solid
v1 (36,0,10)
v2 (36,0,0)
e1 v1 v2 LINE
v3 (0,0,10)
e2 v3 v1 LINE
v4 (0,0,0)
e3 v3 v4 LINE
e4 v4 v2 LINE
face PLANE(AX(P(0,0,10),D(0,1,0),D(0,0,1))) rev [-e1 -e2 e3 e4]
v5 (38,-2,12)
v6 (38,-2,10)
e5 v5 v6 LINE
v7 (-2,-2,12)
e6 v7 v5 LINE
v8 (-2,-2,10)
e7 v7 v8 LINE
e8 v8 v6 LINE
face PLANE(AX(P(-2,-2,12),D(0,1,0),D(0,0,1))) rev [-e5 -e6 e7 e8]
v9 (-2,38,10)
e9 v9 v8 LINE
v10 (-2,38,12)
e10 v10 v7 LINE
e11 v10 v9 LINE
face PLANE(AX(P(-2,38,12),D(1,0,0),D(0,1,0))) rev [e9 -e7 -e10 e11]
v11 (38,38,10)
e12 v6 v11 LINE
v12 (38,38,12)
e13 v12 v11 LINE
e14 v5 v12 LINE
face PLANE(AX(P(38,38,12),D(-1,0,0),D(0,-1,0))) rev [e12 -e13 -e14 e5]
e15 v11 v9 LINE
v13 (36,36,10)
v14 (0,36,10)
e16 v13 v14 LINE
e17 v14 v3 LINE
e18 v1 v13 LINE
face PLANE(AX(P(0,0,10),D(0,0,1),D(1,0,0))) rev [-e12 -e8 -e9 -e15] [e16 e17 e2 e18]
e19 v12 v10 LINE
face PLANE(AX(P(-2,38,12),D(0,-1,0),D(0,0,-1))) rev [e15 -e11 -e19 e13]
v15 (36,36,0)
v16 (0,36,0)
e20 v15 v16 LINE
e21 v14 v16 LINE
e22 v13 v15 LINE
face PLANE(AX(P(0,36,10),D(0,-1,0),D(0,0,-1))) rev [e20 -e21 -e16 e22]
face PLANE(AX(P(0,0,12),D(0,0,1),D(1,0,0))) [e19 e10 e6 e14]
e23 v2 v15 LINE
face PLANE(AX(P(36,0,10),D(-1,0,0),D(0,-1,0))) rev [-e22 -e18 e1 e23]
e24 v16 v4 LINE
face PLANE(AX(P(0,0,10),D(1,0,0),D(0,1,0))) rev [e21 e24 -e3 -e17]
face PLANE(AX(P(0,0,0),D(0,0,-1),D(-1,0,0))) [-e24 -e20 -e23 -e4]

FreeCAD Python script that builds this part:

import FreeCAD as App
import Part
import Sketcher

doc = App.newDocument("Part")
body = doc.addObject("PartDesign::Body", "Body")

# Sketch on XY plane
sketch1 = doc.addObject("Sketcher::SketchObject", "Sketch")
body.addObject(sketch1)
sketch1.AttachmentSupport = (doc.XY_Plane, [""])
sketch1.MapMode = "FlatFace"
sketch1.addGeometry([
    Part.LineSegment(App.Vector(0, 36, 0), App.Vector(0, 0, 0)),
    Part.LineSegment(App.Vector(0, 0, 0), App.Vector(36, 0, 0)),
    Part.LineSegment(App.Vector(36, 0, 0), App.Vector(36, 36, 0)),
    Part.LineSegment(App.Vector(36, 36, 0), App.Vector(0, 36, 0)),
], False)
sketch1.addConstraint([
    Sketcher.Constraint("Coincident", 0, 2, 1, 1),
    Sketcher.Constraint("Coincident", 1, 2, 2, 1),
    Sketcher.Constraint("Coincident", 2, 2, 3, 1),
    Sketcher.Constraint("Coincident", 3, 2, 0, 1),
    Sketcher.Constraint("Vertical", 0),
    Sketcher.Constraint("Horizontal", 1),
    Sketcher.Constraint("Vertical", 2),
    Sketcher.Constraint("Horizontal", 3),
    Sketcher.Constraint("Coincident", 0, 2, -1, 1),
    Sketcher.Constraint("Equal", 3, 0),
    Sketcher.Constraint("DistanceX", 1, 1, 1, 2, 36.0),
])
pad1 = doc.addObject("PartDesign::Pad", "Pad")
body.addObject(pad1)
pad1.Profile = sketch1
pad1.Length = 10

# Sketch on XY plane
sketch2 = doc.addObject("Sketcher::SketchObject", "Sketch001")
body.addObject(sketch2)
sketch2.AttachmentSupport = (doc.XY_Plane, [""])
sketch2.MapMode = "FlatFace"
sketch2.AttachmentOffset = App.Placement(App.Vector(0, 0, 10), App.Rotation())
sketch2.addGeometry([
    Part.LineSegment(App.Vector(-2, 38, 0), App.Vector(-2, -2, 0)),
    Part.LineSegment(App.Vector(-2, -2, 0), App.Vector(38, -2, 0)),
    Part.LineSegment(App.Vector(38, -2, 0), App.Vector(38, 38, 0)),
    Part.LineSegment(App.Vector(38, 38, 0), App.Vector(-2, 38, 0)),
], False)
sketch2.addConstraint([
    Sketcher.Constraint("Coincident", 0, 2, 1, 1),
    Sketcher.Constraint("Coincident", 1, 2, 2, 1),
    Sketcher.Constraint("Coincident", 2, 2, 3, 1),
    Sketcher.Constraint("Coincident", 3, 2, 0, 1),
    Sketcher.Constraint("Vertical", 0),
    Sketcher.Constraint("Horizontal", 1),
    Sketcher.Constraint("Vertical", 2),
    Sketcher.Constraint("Horizontal", 3),
    Sketcher.Constraint("Equal", 3, 0),
    Sketcher.Constraint("DistanceX", 1, 1, 1, 2, 40.0),
    Sketcher.Constraint("DistanceX", 0, 2, -1, 1, 2.0),
    Sketcher.Constraint("DistanceY", 0, 2, -1, 1, 2.0),
])
pad2 = doc.addObject("PartDesign::Pad", "Pad001")
body.addObject(pad2)
pad2.Profile = sketch2
pad2.Length = 2

doc.recompute()
